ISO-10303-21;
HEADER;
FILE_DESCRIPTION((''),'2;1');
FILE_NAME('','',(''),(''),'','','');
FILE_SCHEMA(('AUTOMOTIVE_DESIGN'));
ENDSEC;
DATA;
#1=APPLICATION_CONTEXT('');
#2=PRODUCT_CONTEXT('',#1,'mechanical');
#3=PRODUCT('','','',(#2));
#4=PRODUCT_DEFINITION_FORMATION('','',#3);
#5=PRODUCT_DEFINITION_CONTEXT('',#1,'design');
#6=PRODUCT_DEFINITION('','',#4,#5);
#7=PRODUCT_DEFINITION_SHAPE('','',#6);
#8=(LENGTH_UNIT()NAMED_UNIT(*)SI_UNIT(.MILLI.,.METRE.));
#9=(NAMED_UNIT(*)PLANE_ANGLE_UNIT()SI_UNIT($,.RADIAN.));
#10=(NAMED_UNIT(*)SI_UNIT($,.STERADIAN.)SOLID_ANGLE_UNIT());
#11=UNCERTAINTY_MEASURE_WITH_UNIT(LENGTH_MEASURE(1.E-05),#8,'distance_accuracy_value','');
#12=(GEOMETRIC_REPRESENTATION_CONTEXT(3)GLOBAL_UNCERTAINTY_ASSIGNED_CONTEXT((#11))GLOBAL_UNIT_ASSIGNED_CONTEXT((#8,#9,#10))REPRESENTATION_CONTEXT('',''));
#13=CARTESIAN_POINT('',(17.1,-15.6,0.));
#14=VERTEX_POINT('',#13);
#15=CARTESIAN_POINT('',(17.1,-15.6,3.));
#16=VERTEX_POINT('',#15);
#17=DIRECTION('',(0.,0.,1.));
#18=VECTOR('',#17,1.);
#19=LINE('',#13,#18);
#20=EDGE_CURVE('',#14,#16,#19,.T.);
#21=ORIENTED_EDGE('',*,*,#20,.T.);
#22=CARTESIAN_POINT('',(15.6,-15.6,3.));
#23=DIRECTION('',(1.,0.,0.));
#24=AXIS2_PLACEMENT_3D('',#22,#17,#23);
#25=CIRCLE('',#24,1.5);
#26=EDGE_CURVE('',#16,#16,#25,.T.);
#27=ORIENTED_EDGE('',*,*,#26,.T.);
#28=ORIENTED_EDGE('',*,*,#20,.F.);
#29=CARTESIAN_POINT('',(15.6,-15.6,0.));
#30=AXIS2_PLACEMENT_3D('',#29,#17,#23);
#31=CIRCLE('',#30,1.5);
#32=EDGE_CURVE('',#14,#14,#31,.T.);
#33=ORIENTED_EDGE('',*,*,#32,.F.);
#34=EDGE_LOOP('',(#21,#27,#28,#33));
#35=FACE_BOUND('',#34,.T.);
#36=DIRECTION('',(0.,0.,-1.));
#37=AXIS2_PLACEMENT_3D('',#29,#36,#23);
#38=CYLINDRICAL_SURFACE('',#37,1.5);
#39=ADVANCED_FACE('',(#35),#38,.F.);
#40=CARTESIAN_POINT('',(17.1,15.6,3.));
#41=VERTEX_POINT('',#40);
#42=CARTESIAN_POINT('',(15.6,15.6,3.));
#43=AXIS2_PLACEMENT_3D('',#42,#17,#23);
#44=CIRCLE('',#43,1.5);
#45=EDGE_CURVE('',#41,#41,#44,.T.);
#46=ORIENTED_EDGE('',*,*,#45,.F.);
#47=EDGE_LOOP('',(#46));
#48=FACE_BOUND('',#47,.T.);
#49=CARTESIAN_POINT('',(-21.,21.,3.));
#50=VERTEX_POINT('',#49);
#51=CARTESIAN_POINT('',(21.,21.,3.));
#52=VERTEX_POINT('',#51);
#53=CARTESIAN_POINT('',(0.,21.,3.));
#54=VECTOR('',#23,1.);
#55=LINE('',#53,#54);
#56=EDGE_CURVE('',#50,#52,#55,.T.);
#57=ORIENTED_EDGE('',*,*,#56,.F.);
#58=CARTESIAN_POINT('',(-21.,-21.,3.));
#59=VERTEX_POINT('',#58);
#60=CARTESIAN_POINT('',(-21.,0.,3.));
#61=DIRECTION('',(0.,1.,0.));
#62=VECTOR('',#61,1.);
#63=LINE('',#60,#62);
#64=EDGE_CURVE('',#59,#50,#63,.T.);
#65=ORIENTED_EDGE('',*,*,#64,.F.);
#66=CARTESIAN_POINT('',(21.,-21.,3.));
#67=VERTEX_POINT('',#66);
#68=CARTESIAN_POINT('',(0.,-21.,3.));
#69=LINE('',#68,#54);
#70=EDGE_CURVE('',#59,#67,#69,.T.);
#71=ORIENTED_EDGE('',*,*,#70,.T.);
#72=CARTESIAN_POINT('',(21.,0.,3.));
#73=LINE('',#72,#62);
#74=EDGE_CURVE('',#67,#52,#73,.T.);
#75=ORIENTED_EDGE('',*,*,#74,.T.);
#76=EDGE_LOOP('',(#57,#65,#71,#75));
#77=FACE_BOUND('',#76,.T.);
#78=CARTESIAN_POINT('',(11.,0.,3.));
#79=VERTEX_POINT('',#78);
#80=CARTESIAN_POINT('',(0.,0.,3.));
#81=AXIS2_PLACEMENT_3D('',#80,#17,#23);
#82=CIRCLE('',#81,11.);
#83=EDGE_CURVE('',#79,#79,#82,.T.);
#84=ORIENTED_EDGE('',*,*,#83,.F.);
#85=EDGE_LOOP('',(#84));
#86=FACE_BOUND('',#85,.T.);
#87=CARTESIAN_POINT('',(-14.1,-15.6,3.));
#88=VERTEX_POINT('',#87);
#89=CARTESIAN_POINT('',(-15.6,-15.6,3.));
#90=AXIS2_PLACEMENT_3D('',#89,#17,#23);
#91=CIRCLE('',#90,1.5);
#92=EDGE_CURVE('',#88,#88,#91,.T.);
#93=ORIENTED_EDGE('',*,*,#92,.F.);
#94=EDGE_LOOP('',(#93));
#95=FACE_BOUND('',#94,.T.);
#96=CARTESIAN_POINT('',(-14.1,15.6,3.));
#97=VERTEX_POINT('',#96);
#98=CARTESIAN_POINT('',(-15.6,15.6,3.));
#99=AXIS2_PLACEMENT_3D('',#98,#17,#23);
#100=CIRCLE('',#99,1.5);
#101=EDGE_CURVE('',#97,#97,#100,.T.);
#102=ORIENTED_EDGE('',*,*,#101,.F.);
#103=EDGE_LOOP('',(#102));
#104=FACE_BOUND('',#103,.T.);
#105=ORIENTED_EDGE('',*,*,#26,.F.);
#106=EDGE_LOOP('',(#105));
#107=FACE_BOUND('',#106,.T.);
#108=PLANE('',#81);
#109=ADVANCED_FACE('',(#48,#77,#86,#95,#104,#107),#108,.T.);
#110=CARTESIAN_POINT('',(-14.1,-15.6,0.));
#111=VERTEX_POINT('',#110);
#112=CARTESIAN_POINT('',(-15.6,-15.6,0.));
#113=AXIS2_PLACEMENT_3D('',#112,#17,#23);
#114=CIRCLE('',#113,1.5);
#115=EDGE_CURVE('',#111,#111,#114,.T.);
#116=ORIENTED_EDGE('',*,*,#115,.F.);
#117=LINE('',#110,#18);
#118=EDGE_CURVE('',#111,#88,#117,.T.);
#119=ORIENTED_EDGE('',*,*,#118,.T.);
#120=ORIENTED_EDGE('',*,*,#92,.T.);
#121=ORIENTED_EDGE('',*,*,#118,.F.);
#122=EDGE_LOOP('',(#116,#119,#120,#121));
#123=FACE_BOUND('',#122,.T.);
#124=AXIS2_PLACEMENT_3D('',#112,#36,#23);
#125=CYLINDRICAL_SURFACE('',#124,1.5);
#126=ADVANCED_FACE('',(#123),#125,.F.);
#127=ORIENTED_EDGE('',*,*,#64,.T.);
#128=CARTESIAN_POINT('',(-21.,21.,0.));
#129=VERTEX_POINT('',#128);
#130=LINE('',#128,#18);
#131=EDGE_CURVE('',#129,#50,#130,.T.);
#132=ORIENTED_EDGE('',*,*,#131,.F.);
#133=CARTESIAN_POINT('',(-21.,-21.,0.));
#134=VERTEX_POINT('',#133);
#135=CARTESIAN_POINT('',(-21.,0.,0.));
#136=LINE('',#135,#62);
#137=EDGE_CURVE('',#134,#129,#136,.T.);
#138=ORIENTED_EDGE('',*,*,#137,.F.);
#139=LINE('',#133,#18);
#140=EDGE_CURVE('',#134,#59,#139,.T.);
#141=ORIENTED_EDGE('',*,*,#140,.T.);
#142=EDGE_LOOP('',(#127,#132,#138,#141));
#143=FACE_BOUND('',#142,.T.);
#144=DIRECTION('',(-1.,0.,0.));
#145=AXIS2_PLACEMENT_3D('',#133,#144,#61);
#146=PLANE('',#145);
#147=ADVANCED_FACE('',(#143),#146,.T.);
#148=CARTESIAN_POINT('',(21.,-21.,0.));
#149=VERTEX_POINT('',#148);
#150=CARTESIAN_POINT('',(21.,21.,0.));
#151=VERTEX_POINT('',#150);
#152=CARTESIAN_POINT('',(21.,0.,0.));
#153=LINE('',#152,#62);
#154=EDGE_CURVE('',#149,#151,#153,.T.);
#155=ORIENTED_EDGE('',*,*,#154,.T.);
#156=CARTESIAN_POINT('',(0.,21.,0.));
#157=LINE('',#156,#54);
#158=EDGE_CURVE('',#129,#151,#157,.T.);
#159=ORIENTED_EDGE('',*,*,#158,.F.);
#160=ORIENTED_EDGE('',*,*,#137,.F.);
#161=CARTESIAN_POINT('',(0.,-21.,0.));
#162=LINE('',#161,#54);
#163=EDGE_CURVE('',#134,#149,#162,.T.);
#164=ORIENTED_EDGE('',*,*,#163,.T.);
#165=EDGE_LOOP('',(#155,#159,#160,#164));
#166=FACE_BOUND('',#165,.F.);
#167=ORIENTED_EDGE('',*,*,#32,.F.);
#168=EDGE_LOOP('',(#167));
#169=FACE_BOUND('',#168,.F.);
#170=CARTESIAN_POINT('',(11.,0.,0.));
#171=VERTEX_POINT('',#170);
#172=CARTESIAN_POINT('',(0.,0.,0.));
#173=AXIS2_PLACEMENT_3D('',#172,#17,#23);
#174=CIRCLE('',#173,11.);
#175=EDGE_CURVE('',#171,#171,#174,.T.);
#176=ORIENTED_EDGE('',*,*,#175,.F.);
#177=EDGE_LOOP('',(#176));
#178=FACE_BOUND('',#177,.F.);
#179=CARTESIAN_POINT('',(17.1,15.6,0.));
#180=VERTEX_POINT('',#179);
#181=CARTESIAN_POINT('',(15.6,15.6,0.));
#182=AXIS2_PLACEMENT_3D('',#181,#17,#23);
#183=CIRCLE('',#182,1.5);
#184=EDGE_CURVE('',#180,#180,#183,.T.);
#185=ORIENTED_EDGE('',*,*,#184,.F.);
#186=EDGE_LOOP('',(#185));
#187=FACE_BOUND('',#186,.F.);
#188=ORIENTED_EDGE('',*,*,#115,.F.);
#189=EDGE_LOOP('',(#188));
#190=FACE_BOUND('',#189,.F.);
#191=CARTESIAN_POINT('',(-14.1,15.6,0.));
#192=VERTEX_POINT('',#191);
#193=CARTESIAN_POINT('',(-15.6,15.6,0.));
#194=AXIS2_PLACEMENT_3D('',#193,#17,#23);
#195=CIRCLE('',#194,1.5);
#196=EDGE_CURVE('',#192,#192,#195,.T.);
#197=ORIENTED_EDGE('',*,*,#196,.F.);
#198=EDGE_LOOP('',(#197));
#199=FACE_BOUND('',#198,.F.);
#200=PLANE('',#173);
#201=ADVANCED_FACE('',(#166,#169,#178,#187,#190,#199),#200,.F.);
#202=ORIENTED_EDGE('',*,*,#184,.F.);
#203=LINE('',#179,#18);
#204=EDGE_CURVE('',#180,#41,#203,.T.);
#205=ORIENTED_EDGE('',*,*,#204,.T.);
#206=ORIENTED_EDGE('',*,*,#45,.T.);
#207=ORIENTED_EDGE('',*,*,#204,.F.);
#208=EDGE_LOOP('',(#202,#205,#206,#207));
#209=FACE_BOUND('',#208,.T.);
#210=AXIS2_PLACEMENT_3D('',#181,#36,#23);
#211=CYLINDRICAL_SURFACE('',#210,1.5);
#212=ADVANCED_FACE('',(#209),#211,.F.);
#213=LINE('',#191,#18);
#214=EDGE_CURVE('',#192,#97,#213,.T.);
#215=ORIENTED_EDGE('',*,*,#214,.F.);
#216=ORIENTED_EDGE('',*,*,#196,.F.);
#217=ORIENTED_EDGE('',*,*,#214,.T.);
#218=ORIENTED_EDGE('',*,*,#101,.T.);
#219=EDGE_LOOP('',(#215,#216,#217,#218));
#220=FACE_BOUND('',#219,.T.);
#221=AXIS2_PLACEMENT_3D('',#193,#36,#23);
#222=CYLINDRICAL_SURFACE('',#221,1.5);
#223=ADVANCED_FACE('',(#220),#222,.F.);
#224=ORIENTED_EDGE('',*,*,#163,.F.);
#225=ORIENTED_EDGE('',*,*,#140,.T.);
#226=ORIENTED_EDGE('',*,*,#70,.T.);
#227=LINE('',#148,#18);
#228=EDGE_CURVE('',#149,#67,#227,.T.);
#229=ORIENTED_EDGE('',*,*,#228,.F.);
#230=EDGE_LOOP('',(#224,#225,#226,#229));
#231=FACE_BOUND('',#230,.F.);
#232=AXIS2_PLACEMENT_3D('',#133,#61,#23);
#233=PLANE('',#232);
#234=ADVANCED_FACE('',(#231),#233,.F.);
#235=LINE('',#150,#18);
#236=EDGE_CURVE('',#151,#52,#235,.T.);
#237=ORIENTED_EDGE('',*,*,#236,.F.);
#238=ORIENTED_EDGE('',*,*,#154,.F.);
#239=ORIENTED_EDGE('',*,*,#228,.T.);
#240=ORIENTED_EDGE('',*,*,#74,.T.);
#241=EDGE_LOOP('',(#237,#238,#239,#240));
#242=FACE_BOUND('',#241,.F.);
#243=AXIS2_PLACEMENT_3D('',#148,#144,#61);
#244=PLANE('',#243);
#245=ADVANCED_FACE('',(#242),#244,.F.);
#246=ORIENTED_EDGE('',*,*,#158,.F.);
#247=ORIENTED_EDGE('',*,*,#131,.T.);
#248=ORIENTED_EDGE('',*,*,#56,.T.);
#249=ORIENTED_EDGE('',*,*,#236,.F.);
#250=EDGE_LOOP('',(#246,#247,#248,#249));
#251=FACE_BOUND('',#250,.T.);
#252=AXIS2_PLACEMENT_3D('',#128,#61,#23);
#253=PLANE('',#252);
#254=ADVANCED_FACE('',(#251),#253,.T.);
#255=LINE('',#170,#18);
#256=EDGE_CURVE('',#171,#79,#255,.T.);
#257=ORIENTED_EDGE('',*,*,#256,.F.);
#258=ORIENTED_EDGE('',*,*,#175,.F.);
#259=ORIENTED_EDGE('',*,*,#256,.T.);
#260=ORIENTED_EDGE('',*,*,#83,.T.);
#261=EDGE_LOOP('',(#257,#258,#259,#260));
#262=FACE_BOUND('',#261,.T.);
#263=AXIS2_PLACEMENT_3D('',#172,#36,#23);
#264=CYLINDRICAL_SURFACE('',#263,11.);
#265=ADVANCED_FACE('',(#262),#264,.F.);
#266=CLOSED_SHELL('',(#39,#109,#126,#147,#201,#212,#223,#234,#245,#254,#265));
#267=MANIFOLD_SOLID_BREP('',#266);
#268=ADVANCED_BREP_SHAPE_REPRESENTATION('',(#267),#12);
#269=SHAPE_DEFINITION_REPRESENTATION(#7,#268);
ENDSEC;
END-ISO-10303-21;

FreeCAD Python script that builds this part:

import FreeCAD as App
import Part
import Sketcher

V = App.Vector

doc = App.newDocument("Part")
body = doc.addObject("PartDesign::Body", "Body")

sketch1 = body.newObject("Sketcher::SketchObject", "Sketch")
sketch1.AttachmentSupport = (doc.getObject("XY_Plane"), [""])
sketch1.MapMode = "FlatFace"
sketch1.addGeometry(Part.LineSegment(V(-21, 21, 0), V(-21, -21, 0)), False)
sketch1.addGeometry(Part.LineSegment(V(-21, -21, 0), V(21, -21, 0)), False)
sketch1.addGeometry(Part.LineSegment(V(21, -21, 0), V(21, 21, 0)), False)
sketch1.addGeometry(Part.LineSegment(V(21, 21, 0), V(-21, 21, 0)), False)
sketch1.addGeometry(Part.Circle(V(-15.6, -15.6, 0), V(0, 0, 1), 1.5), False)
sketch1.addGeometry(Part.Circle(V(15.6, -15.6, 0), V(0, 0, 1), 1.5), False)
sketch1.addGeometry(Part.Circle(V(-15.6, 15.6, 0), V(0, 0, 1), 1.5), False)
sketch1.addGeometry(Part.Circle(V(0, 0, 0), V(0, 0, 1), 11), False)
sketch1.addGeometry(Part.Circle(V(15.6, 15.6, 0), V(0, 0, 1), 1.5), False)
sketch1.addConstraint(Sketcher.Constraint("Coincident", 0, 2, 1, 1))
sketch1.addConstraint(Sketcher.Constraint("Coincident", 1, 2, 2, 1))
sketch1.addConstraint(Sketcher.Constraint("Coincident", 2, 2, 3, 1))
sketch1.addConstraint(Sketcher.Constraint("Coincident", 3, 2, 0, 1))
sketch1.addConstraint(Sketcher.Constraint("Vertical", 0))
sketch1.addConstraint(Sketcher.Constraint("Horizontal", 1))
sketch1.addConstraint(Sketcher.Constraint("Vertical", 2))
sketch1.addConstraint(Sketcher.Constraint("Horizontal", 3))
sketch1.addConstraint(Sketcher.Constraint("Coincident", 7, 3, -1, 1))
sketch1.addConstraint(Sketcher.Constraint("Equal", 4, 5))
sketch1.addConstraint(Sketcher.Constraint("Equal", 5, 6))
sketch1.addConstraint(Sketcher.Constraint("Equal", 6, 8))
sketch1.addConstraint(Sketcher.Constraint("Symmetric", 5, 3, 6, 3, -1, 1))
sketch1.addConstraint(Sketcher.Constraint("Symmetric", 4, 3, 8, 3, -1, 1))
sketch1.addConstraint(Sketcher.Constraint("Symmetric", 0, 2, 2, 2, -1, 1))
sketch1.addConstraint(Sketcher.Constraint("Symmetric", 4, 3, 5, 3, -2))
sketch1.addConstraint(Sketcher.Constraint("Equal", 3, 0))
sketch1.addConstraint(Sketcher.Constraint("Diameter", 4, 3.0))
sketch1.addConstraint(Sketcher.Constraint("Diameter", 7, 22.0))
sketch1.addConstraint(Sketcher.Constraint("DistanceX", 1, 1, 1, 2, 42.0))
sketch1.addConstraint(Sketcher.Constraint("DistanceX", 4, 3, -1, 1, 15.6))
sketch1.addConstraint(Sketcher.Constraint("DistanceY", 4, 3, -1, 1, 15.6))
pad1 = body.newObject("PartDesign::Pad", "Pad")
pad1.Profile = sketch1
pad1.Length = 3

doc.recompute()
